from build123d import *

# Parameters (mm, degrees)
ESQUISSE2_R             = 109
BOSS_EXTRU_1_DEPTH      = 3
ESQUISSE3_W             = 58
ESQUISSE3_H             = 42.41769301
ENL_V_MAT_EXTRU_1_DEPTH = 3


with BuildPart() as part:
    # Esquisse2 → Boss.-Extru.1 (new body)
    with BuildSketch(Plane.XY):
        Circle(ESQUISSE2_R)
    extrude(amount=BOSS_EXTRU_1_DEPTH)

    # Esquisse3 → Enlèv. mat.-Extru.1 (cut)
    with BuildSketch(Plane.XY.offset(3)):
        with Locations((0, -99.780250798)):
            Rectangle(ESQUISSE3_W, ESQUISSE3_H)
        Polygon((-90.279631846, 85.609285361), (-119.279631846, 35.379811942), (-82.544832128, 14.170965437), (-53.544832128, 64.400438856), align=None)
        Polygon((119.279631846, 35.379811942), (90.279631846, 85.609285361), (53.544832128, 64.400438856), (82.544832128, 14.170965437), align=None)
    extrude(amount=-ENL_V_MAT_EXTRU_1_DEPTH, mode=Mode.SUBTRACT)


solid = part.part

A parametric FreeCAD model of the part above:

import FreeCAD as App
import Part
import Sketcher
from FreeCAD import Vector
Q = App.Units.Quantity


def add_polygon(sketch, points):
    """Adds a closed chain of lines whose ends are joined by coincident constraints."""
    first, n = sketch.GeometryCount, len(points)
    for a, b in zip(points, points[1:] + points[:1]):
        sketch.addGeometry(Part.LineSegment(App.Vector(*a, 0), App.Vector(*b, 0)), False)
    for i in range(n):
        sketch.addConstraint(Sketcher.Constraint("Coincident", first + i, 2, first + (i + 1) % n, 1))

doc = App.newDocument("Part")
body = doc.addObject("PartDesign::Body", "Body")

sketch1 = body.newObject("Sketcher::SketchObject", "Sketch")
sketch1.AttachmentSupport = (doc.getObject("XY_Plane"), [""])
sketch1.MapMode = "FlatFace"
sketch1.addGeometry(Part.Circle(Vector(0, 0, 0), Vector(0, 0, 1), 109), False)
sketch1.addConstraint([
    Sketcher.Constraint("Coincident", 0, 3, -1, 1),
    Sketcher.Constraint("Diameter", 0, 218.0),
])
pad1 = body.newObject("PartDesign::Pad", "Pad")
pad1.Profile = sketch1
pad1.Length = 3

sketch2 = body.newObject("Sketcher::SketchObject", "Sketch001")
sketch2.AttachmentSupport = (doc.getObject("XY_Plane"), [""])
sketch2.MapMode = "FlatFace"
sketch2.AttachmentOffset = App.Placement(Vector(0, 0, 3), App.Rotation())
add_polygon(sketch2, [(-29, -79), (-29, -121), (29, -121), (29, -79)])
add_polygon(sketch2, [(-90, 86), (-119, 35), (-83, 14), (-54, 64)])
add_polygon(sketch2, [(119, 35), (90, 86), (54, 64), (83, 14)])
sketch2.addConstraint([
    Sketcher.Constraint("Vertical", 0),
    Sketcher.Constraint("Horizontal", 1),
    Sketcher.Constraint("Vertical", 2),
    Sketcher.Constraint("Horizontal", 3),
    Sketcher.Constraint("Symmetric", 7, 2, 8, 2, -2),
    Sketcher.Constraint("Symmetric", 6, 2, 9, 2, -2),
    Sketcher.Constraint("Symmetric", 5, 2, 10, 2, -2),
    Sketcher.Constraint("Symmetric", 4, 2, 11, 2, -2),
    Sketcher.Constraint("Perpendicular", 4, 5),
    Sketcher.Constraint("Perpendicular", 5, 6),
    Sketcher.Constraint("Perpendicular", 6, 7),
    Sketcher.Constraint("DistanceX", 1, 1, 1, 2, 58.0),
    Sketcher.Constraint("Angle", 4, Q("-120 deg")),
    Sketcher.Constraint("Distance", 4, 58.0),
    Sketcher.Constraint("DistanceX", 0, 2, -1, 1, 29.0),
    Sketcher.Constraint("DistanceX", 4, 2, 5, 2, 36.7348),
    Sketcher.Constraint("DistanceY", 0, 2, 0, 1, 42.417693),
    Sketcher.Constraint("DistanceX", 4, 2, -1, 1, 119.279632),
    Sketcher.Constraint("DistanceY", -1, 1, 4, 2, 35.379812),
    Sketcher.Constraint("DistanceY", 0, 2, 4, 2, 156.368909),
])
pocket1 = body.newObject("PartDesign::Pocket", "Pocket")
pocket1.Profile = sketch2
pocket1.Length = 3

doc.recompute()
